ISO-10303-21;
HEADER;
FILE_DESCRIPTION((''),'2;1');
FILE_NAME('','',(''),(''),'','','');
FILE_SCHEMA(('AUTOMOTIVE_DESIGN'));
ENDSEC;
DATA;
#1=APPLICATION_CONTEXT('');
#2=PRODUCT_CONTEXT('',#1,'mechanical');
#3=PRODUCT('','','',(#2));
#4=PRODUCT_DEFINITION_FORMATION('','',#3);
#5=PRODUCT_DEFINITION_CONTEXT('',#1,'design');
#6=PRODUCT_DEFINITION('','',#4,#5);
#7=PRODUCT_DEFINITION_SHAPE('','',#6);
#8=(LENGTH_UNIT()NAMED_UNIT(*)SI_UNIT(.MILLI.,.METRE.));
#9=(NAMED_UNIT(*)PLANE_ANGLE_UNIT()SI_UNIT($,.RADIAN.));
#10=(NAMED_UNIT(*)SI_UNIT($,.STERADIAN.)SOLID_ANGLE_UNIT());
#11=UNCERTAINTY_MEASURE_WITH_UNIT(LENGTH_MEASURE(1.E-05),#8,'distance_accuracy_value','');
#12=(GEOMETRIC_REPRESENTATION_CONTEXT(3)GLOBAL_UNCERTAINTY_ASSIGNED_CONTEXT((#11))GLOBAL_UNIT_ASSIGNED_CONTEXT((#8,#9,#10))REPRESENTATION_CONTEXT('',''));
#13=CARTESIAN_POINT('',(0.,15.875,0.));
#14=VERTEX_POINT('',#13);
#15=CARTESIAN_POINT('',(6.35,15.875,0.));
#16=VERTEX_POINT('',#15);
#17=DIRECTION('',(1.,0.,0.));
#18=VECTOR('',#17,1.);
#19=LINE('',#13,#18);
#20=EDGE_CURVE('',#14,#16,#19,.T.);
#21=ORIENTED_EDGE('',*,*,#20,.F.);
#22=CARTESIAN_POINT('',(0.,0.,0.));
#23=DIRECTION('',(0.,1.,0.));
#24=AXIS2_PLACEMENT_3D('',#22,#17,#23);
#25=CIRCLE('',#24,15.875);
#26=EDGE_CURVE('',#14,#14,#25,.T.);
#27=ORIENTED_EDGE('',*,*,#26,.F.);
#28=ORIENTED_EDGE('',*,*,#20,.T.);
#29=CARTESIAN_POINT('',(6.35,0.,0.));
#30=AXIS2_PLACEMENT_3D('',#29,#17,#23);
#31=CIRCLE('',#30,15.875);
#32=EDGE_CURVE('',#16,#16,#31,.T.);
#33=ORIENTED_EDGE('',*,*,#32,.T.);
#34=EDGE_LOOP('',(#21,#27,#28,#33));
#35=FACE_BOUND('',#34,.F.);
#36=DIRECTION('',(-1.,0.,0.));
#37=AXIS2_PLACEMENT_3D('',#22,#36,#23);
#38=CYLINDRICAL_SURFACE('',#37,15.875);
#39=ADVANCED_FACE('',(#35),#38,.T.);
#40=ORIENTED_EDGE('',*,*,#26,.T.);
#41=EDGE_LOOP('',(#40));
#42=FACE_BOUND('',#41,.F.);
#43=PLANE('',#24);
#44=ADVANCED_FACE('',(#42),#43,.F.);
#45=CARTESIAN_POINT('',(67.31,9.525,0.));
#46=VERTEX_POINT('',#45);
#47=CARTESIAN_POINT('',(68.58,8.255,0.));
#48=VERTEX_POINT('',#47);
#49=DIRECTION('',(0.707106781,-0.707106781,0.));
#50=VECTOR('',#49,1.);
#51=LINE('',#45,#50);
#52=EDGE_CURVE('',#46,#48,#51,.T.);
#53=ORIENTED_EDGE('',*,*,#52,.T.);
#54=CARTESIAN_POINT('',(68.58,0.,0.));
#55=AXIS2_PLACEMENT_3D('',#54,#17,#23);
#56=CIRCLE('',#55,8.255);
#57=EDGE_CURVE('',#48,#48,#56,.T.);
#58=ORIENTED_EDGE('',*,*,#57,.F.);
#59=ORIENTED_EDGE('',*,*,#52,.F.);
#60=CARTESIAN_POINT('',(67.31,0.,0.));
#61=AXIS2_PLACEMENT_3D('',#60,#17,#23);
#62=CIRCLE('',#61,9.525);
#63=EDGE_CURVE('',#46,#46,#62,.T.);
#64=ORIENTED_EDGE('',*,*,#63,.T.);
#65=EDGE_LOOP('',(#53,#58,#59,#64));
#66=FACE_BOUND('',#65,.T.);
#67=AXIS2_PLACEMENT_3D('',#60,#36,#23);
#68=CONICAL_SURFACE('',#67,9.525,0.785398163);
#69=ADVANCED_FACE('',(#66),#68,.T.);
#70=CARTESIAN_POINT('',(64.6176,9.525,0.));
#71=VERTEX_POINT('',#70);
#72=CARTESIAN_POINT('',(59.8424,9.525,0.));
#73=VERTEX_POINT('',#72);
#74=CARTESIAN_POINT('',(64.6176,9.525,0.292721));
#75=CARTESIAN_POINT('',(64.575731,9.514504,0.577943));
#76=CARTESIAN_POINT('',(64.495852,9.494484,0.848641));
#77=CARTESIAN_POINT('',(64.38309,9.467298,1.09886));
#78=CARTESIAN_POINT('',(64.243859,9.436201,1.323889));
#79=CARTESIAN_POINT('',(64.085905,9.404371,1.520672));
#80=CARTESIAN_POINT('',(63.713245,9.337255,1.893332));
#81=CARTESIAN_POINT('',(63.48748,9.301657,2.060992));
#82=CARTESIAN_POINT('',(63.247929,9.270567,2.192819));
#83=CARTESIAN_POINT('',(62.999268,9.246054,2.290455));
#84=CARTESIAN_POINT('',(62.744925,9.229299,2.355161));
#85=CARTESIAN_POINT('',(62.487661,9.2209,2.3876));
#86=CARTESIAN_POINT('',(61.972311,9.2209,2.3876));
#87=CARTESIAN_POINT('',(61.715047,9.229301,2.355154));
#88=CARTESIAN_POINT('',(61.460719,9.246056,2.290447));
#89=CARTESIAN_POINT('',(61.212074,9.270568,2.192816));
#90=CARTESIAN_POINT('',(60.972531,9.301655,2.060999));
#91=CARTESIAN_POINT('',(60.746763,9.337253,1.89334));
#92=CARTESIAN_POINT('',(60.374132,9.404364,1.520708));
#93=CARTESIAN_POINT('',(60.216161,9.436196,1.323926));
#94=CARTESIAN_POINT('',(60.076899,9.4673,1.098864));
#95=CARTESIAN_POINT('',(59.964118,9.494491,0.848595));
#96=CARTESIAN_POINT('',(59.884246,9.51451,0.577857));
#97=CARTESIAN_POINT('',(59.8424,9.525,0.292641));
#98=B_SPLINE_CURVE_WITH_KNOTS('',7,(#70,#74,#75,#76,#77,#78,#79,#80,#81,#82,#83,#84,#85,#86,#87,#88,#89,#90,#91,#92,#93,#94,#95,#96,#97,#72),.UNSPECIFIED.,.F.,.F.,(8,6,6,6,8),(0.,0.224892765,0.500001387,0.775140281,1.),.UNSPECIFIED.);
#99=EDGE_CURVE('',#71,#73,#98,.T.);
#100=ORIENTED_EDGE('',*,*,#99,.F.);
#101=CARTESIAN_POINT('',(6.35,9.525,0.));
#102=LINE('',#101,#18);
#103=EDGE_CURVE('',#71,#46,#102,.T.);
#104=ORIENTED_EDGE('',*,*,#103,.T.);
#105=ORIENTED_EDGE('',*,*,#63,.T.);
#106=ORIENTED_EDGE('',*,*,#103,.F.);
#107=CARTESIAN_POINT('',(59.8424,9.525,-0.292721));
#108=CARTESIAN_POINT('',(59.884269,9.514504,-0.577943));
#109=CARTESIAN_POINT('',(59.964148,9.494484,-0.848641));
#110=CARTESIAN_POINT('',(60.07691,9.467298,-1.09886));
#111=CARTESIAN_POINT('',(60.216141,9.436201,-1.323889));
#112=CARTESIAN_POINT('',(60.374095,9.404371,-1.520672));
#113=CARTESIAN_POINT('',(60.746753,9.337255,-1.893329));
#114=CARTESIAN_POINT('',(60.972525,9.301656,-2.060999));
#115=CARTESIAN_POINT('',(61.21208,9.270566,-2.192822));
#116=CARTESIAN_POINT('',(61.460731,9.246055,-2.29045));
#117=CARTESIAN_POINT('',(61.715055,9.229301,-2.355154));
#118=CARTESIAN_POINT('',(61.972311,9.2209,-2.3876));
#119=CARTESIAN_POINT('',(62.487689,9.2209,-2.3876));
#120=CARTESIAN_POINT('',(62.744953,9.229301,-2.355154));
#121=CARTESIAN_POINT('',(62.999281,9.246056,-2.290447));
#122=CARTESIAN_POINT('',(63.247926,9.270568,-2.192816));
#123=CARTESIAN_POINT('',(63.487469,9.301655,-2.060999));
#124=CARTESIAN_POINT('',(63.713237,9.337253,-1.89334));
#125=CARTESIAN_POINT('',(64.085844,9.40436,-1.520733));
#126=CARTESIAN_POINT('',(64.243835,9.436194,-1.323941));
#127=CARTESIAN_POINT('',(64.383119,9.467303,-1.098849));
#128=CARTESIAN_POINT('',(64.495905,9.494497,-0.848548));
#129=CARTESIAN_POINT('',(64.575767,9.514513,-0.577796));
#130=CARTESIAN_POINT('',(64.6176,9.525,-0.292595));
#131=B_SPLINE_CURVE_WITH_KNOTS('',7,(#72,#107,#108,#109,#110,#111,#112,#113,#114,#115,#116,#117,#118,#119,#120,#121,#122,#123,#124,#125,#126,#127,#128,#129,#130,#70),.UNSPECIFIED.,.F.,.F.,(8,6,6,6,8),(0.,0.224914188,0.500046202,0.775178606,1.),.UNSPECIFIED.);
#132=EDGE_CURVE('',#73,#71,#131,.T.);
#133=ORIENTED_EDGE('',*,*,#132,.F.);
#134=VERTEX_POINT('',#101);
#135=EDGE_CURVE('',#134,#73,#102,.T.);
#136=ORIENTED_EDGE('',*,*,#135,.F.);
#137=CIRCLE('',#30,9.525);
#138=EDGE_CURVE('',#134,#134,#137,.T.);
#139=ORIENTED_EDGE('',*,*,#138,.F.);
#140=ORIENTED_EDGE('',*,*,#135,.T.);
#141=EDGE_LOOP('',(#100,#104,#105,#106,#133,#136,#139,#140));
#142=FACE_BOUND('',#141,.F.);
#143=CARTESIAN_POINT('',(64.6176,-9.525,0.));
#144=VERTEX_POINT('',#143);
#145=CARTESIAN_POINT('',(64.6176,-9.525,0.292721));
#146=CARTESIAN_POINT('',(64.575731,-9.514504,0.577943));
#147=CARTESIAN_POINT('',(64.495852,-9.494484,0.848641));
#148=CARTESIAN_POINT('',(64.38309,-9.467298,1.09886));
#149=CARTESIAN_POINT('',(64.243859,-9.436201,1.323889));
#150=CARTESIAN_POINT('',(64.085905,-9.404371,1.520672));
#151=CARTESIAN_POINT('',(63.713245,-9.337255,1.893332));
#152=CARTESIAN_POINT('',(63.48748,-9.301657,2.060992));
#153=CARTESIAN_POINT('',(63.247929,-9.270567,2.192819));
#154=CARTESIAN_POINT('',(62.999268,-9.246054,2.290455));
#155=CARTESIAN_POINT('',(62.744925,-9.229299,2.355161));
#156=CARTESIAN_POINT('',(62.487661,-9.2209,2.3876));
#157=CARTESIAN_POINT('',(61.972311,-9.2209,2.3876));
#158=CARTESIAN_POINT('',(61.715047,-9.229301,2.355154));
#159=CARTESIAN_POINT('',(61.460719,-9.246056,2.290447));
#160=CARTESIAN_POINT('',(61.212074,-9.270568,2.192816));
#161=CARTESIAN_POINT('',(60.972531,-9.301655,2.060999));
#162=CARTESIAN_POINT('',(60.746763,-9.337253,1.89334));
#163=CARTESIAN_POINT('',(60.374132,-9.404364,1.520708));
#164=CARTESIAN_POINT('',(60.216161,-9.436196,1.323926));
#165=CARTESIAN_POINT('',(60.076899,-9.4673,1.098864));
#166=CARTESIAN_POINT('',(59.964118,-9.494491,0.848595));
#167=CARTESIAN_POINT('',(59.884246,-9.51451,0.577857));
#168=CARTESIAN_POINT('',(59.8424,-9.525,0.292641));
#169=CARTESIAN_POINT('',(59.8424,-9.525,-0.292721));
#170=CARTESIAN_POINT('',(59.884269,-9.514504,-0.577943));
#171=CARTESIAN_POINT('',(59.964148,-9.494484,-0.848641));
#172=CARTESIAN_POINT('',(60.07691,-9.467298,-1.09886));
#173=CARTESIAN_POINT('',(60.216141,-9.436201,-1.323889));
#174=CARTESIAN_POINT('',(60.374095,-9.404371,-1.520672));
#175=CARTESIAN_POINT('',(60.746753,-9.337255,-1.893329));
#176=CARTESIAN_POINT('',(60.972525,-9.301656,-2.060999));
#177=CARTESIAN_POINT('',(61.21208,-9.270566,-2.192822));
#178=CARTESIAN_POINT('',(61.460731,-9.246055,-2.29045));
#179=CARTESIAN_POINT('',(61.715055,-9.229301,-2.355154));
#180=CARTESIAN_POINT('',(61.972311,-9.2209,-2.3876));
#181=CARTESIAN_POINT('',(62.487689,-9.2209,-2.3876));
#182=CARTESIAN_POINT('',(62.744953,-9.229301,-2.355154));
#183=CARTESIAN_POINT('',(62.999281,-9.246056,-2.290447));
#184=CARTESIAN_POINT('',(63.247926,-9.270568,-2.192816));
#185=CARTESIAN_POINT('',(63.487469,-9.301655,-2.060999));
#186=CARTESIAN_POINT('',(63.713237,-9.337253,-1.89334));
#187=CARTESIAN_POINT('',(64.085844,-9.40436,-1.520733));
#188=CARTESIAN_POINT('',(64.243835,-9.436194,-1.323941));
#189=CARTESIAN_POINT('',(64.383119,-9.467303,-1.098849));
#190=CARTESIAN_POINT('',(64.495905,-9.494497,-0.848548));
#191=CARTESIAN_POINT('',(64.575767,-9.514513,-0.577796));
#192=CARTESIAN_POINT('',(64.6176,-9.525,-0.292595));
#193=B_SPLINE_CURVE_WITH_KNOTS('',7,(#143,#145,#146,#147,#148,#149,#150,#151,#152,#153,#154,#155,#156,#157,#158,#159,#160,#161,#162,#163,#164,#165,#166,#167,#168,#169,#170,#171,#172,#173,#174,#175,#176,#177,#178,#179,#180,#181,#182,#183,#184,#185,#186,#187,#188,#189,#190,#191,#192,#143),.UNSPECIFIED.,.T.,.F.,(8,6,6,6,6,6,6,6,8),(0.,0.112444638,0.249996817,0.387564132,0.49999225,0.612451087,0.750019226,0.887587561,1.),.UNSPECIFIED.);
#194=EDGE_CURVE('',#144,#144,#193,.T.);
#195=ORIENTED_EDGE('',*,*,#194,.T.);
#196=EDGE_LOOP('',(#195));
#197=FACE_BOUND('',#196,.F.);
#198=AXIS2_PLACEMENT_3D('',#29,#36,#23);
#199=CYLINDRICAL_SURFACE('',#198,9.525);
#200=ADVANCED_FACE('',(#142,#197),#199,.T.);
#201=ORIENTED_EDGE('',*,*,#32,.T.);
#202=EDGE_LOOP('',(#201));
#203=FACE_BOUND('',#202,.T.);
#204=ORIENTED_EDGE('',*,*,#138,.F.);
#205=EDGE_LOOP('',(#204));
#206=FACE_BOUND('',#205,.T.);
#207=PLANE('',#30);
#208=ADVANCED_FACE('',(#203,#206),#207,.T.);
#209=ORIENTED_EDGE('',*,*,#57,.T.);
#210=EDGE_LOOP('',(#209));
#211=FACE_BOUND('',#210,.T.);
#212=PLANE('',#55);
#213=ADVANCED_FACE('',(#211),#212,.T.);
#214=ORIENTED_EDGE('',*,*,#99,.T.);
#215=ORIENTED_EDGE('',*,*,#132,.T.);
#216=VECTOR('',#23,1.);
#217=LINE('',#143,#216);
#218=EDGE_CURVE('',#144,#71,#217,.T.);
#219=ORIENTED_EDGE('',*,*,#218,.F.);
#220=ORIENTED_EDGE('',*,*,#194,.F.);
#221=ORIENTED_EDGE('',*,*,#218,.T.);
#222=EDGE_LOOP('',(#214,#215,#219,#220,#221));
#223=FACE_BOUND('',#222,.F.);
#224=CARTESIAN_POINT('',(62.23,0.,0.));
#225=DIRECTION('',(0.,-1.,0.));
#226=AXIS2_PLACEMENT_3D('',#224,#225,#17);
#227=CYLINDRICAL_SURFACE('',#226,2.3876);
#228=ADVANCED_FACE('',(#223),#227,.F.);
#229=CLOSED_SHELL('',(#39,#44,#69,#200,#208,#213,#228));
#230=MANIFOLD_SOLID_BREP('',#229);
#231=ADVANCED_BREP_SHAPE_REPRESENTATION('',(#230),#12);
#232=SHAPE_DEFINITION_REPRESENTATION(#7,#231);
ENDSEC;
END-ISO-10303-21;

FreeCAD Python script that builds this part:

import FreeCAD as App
import Part
import Sketcher

V = App.Vector
Q = App.Units.Quantity


def edges_at(feature, points):
    """Names of the edges that pass closest to the given points."""
    edges = feature.Shape.Edges
    near = lambda p: min(range(len(edges)), key=lambda i: edges[i].distToShape(Part.Vertex(*p))[0])
    return sorted({f"Edge{near(p) + 1}" for p in points})

doc = App.newDocument("Part")
body = doc.addObject("PartDesign::Body", "Body")

# Sketch on YZ plane
sketch1 = body.newObject("Sketcher::SketchObject", "Sketch")
sketch1.AttachmentSupport = (doc.getObject("YZ_Plane"), [""])
sketch1.MapMode = "FlatFace"
sketch1.addGeometry(Part.Circle(V(0, 0, 0), V(0, 0, 1), 16), False)
sketch1.addConstraint(Sketcher.Constraint("Coincident", 0, 3, -1, 1))
sketch1.addConstraint(Sketcher.Constraint("Diameter", 0, Q("1.25 in")))
pad1 = body.newObject("PartDesign::Pad", "Pad")
pad1.Profile = sketch1
pad1.Length = Q("0.25 in")

# Sketch on YZ plane
sketch2 = body.newObject("Sketcher::SketchObject", "Sketch001")
sketch2.AttachmentSupport = (doc.getObject("YZ_Plane"), [""])
sketch2.MapMode = "FlatFace"
sketch2.AttachmentOffset = App.Placement(V(0, 0, 0.25 * 25.4), App.Rotation())
sketch2.addGeometry(Part.Circle(V(0, 0, 0), V(0, 0, 1), 10), False)
sketch2.addConstraint(Sketcher.Constraint("Coincident", 0, 3, -1, 1))
sketch2.addConstraint(Sketcher.Constraint("Diameter", 0, Q("0.75 in")))
pad2 = body.newObject("PartDesign::Pad", "Pad001")
pad2.Profile = sketch2
pad2.Length = Q("2.45 in")
doc.recompute()

chamfer = body.newObject("PartDesign::Chamfer", "Chamfer")
chamfer.Base = (pad2, edges_at(pad2, [(68.58, -9.525, 0)]))
chamfer.ChamferType = "Two distances"
chamfer.Size = Q("0.05 in")
chamfer.Size2 = Q("0.05 in")

# Sketch on XZ plane
sketch3 = body.newObject("Sketcher::SketchObject", "Sketch002")
sketch3.AttachmentSupport = (doc.getObject("XZ_Plane"), [""])
sketch3.MapMode = "FlatFace"
sketch3.addGeometry(Part.Circle(V(62.2, 0, 0), V(0, 0, 1), 2.4), False)
sketch3.addConstraint(Sketcher.Constraint("PointOnObject", 0, 3, -1))
sketch3.addConstraint(Sketcher.Constraint("Diameter", 0, Q("0.188 in")))
sketch3.addConstraint(Sketcher.Constraint("DistanceX", -1, 1, 0, 3, Q("2.45 in")))
pocket1 = body.newObject("PartDesign::Pocket", "Pocket")
pocket1.Profile = sketch3
pocket1.Type = "ThroughAll"
pocket1.Midplane = True

doc.recompute()
